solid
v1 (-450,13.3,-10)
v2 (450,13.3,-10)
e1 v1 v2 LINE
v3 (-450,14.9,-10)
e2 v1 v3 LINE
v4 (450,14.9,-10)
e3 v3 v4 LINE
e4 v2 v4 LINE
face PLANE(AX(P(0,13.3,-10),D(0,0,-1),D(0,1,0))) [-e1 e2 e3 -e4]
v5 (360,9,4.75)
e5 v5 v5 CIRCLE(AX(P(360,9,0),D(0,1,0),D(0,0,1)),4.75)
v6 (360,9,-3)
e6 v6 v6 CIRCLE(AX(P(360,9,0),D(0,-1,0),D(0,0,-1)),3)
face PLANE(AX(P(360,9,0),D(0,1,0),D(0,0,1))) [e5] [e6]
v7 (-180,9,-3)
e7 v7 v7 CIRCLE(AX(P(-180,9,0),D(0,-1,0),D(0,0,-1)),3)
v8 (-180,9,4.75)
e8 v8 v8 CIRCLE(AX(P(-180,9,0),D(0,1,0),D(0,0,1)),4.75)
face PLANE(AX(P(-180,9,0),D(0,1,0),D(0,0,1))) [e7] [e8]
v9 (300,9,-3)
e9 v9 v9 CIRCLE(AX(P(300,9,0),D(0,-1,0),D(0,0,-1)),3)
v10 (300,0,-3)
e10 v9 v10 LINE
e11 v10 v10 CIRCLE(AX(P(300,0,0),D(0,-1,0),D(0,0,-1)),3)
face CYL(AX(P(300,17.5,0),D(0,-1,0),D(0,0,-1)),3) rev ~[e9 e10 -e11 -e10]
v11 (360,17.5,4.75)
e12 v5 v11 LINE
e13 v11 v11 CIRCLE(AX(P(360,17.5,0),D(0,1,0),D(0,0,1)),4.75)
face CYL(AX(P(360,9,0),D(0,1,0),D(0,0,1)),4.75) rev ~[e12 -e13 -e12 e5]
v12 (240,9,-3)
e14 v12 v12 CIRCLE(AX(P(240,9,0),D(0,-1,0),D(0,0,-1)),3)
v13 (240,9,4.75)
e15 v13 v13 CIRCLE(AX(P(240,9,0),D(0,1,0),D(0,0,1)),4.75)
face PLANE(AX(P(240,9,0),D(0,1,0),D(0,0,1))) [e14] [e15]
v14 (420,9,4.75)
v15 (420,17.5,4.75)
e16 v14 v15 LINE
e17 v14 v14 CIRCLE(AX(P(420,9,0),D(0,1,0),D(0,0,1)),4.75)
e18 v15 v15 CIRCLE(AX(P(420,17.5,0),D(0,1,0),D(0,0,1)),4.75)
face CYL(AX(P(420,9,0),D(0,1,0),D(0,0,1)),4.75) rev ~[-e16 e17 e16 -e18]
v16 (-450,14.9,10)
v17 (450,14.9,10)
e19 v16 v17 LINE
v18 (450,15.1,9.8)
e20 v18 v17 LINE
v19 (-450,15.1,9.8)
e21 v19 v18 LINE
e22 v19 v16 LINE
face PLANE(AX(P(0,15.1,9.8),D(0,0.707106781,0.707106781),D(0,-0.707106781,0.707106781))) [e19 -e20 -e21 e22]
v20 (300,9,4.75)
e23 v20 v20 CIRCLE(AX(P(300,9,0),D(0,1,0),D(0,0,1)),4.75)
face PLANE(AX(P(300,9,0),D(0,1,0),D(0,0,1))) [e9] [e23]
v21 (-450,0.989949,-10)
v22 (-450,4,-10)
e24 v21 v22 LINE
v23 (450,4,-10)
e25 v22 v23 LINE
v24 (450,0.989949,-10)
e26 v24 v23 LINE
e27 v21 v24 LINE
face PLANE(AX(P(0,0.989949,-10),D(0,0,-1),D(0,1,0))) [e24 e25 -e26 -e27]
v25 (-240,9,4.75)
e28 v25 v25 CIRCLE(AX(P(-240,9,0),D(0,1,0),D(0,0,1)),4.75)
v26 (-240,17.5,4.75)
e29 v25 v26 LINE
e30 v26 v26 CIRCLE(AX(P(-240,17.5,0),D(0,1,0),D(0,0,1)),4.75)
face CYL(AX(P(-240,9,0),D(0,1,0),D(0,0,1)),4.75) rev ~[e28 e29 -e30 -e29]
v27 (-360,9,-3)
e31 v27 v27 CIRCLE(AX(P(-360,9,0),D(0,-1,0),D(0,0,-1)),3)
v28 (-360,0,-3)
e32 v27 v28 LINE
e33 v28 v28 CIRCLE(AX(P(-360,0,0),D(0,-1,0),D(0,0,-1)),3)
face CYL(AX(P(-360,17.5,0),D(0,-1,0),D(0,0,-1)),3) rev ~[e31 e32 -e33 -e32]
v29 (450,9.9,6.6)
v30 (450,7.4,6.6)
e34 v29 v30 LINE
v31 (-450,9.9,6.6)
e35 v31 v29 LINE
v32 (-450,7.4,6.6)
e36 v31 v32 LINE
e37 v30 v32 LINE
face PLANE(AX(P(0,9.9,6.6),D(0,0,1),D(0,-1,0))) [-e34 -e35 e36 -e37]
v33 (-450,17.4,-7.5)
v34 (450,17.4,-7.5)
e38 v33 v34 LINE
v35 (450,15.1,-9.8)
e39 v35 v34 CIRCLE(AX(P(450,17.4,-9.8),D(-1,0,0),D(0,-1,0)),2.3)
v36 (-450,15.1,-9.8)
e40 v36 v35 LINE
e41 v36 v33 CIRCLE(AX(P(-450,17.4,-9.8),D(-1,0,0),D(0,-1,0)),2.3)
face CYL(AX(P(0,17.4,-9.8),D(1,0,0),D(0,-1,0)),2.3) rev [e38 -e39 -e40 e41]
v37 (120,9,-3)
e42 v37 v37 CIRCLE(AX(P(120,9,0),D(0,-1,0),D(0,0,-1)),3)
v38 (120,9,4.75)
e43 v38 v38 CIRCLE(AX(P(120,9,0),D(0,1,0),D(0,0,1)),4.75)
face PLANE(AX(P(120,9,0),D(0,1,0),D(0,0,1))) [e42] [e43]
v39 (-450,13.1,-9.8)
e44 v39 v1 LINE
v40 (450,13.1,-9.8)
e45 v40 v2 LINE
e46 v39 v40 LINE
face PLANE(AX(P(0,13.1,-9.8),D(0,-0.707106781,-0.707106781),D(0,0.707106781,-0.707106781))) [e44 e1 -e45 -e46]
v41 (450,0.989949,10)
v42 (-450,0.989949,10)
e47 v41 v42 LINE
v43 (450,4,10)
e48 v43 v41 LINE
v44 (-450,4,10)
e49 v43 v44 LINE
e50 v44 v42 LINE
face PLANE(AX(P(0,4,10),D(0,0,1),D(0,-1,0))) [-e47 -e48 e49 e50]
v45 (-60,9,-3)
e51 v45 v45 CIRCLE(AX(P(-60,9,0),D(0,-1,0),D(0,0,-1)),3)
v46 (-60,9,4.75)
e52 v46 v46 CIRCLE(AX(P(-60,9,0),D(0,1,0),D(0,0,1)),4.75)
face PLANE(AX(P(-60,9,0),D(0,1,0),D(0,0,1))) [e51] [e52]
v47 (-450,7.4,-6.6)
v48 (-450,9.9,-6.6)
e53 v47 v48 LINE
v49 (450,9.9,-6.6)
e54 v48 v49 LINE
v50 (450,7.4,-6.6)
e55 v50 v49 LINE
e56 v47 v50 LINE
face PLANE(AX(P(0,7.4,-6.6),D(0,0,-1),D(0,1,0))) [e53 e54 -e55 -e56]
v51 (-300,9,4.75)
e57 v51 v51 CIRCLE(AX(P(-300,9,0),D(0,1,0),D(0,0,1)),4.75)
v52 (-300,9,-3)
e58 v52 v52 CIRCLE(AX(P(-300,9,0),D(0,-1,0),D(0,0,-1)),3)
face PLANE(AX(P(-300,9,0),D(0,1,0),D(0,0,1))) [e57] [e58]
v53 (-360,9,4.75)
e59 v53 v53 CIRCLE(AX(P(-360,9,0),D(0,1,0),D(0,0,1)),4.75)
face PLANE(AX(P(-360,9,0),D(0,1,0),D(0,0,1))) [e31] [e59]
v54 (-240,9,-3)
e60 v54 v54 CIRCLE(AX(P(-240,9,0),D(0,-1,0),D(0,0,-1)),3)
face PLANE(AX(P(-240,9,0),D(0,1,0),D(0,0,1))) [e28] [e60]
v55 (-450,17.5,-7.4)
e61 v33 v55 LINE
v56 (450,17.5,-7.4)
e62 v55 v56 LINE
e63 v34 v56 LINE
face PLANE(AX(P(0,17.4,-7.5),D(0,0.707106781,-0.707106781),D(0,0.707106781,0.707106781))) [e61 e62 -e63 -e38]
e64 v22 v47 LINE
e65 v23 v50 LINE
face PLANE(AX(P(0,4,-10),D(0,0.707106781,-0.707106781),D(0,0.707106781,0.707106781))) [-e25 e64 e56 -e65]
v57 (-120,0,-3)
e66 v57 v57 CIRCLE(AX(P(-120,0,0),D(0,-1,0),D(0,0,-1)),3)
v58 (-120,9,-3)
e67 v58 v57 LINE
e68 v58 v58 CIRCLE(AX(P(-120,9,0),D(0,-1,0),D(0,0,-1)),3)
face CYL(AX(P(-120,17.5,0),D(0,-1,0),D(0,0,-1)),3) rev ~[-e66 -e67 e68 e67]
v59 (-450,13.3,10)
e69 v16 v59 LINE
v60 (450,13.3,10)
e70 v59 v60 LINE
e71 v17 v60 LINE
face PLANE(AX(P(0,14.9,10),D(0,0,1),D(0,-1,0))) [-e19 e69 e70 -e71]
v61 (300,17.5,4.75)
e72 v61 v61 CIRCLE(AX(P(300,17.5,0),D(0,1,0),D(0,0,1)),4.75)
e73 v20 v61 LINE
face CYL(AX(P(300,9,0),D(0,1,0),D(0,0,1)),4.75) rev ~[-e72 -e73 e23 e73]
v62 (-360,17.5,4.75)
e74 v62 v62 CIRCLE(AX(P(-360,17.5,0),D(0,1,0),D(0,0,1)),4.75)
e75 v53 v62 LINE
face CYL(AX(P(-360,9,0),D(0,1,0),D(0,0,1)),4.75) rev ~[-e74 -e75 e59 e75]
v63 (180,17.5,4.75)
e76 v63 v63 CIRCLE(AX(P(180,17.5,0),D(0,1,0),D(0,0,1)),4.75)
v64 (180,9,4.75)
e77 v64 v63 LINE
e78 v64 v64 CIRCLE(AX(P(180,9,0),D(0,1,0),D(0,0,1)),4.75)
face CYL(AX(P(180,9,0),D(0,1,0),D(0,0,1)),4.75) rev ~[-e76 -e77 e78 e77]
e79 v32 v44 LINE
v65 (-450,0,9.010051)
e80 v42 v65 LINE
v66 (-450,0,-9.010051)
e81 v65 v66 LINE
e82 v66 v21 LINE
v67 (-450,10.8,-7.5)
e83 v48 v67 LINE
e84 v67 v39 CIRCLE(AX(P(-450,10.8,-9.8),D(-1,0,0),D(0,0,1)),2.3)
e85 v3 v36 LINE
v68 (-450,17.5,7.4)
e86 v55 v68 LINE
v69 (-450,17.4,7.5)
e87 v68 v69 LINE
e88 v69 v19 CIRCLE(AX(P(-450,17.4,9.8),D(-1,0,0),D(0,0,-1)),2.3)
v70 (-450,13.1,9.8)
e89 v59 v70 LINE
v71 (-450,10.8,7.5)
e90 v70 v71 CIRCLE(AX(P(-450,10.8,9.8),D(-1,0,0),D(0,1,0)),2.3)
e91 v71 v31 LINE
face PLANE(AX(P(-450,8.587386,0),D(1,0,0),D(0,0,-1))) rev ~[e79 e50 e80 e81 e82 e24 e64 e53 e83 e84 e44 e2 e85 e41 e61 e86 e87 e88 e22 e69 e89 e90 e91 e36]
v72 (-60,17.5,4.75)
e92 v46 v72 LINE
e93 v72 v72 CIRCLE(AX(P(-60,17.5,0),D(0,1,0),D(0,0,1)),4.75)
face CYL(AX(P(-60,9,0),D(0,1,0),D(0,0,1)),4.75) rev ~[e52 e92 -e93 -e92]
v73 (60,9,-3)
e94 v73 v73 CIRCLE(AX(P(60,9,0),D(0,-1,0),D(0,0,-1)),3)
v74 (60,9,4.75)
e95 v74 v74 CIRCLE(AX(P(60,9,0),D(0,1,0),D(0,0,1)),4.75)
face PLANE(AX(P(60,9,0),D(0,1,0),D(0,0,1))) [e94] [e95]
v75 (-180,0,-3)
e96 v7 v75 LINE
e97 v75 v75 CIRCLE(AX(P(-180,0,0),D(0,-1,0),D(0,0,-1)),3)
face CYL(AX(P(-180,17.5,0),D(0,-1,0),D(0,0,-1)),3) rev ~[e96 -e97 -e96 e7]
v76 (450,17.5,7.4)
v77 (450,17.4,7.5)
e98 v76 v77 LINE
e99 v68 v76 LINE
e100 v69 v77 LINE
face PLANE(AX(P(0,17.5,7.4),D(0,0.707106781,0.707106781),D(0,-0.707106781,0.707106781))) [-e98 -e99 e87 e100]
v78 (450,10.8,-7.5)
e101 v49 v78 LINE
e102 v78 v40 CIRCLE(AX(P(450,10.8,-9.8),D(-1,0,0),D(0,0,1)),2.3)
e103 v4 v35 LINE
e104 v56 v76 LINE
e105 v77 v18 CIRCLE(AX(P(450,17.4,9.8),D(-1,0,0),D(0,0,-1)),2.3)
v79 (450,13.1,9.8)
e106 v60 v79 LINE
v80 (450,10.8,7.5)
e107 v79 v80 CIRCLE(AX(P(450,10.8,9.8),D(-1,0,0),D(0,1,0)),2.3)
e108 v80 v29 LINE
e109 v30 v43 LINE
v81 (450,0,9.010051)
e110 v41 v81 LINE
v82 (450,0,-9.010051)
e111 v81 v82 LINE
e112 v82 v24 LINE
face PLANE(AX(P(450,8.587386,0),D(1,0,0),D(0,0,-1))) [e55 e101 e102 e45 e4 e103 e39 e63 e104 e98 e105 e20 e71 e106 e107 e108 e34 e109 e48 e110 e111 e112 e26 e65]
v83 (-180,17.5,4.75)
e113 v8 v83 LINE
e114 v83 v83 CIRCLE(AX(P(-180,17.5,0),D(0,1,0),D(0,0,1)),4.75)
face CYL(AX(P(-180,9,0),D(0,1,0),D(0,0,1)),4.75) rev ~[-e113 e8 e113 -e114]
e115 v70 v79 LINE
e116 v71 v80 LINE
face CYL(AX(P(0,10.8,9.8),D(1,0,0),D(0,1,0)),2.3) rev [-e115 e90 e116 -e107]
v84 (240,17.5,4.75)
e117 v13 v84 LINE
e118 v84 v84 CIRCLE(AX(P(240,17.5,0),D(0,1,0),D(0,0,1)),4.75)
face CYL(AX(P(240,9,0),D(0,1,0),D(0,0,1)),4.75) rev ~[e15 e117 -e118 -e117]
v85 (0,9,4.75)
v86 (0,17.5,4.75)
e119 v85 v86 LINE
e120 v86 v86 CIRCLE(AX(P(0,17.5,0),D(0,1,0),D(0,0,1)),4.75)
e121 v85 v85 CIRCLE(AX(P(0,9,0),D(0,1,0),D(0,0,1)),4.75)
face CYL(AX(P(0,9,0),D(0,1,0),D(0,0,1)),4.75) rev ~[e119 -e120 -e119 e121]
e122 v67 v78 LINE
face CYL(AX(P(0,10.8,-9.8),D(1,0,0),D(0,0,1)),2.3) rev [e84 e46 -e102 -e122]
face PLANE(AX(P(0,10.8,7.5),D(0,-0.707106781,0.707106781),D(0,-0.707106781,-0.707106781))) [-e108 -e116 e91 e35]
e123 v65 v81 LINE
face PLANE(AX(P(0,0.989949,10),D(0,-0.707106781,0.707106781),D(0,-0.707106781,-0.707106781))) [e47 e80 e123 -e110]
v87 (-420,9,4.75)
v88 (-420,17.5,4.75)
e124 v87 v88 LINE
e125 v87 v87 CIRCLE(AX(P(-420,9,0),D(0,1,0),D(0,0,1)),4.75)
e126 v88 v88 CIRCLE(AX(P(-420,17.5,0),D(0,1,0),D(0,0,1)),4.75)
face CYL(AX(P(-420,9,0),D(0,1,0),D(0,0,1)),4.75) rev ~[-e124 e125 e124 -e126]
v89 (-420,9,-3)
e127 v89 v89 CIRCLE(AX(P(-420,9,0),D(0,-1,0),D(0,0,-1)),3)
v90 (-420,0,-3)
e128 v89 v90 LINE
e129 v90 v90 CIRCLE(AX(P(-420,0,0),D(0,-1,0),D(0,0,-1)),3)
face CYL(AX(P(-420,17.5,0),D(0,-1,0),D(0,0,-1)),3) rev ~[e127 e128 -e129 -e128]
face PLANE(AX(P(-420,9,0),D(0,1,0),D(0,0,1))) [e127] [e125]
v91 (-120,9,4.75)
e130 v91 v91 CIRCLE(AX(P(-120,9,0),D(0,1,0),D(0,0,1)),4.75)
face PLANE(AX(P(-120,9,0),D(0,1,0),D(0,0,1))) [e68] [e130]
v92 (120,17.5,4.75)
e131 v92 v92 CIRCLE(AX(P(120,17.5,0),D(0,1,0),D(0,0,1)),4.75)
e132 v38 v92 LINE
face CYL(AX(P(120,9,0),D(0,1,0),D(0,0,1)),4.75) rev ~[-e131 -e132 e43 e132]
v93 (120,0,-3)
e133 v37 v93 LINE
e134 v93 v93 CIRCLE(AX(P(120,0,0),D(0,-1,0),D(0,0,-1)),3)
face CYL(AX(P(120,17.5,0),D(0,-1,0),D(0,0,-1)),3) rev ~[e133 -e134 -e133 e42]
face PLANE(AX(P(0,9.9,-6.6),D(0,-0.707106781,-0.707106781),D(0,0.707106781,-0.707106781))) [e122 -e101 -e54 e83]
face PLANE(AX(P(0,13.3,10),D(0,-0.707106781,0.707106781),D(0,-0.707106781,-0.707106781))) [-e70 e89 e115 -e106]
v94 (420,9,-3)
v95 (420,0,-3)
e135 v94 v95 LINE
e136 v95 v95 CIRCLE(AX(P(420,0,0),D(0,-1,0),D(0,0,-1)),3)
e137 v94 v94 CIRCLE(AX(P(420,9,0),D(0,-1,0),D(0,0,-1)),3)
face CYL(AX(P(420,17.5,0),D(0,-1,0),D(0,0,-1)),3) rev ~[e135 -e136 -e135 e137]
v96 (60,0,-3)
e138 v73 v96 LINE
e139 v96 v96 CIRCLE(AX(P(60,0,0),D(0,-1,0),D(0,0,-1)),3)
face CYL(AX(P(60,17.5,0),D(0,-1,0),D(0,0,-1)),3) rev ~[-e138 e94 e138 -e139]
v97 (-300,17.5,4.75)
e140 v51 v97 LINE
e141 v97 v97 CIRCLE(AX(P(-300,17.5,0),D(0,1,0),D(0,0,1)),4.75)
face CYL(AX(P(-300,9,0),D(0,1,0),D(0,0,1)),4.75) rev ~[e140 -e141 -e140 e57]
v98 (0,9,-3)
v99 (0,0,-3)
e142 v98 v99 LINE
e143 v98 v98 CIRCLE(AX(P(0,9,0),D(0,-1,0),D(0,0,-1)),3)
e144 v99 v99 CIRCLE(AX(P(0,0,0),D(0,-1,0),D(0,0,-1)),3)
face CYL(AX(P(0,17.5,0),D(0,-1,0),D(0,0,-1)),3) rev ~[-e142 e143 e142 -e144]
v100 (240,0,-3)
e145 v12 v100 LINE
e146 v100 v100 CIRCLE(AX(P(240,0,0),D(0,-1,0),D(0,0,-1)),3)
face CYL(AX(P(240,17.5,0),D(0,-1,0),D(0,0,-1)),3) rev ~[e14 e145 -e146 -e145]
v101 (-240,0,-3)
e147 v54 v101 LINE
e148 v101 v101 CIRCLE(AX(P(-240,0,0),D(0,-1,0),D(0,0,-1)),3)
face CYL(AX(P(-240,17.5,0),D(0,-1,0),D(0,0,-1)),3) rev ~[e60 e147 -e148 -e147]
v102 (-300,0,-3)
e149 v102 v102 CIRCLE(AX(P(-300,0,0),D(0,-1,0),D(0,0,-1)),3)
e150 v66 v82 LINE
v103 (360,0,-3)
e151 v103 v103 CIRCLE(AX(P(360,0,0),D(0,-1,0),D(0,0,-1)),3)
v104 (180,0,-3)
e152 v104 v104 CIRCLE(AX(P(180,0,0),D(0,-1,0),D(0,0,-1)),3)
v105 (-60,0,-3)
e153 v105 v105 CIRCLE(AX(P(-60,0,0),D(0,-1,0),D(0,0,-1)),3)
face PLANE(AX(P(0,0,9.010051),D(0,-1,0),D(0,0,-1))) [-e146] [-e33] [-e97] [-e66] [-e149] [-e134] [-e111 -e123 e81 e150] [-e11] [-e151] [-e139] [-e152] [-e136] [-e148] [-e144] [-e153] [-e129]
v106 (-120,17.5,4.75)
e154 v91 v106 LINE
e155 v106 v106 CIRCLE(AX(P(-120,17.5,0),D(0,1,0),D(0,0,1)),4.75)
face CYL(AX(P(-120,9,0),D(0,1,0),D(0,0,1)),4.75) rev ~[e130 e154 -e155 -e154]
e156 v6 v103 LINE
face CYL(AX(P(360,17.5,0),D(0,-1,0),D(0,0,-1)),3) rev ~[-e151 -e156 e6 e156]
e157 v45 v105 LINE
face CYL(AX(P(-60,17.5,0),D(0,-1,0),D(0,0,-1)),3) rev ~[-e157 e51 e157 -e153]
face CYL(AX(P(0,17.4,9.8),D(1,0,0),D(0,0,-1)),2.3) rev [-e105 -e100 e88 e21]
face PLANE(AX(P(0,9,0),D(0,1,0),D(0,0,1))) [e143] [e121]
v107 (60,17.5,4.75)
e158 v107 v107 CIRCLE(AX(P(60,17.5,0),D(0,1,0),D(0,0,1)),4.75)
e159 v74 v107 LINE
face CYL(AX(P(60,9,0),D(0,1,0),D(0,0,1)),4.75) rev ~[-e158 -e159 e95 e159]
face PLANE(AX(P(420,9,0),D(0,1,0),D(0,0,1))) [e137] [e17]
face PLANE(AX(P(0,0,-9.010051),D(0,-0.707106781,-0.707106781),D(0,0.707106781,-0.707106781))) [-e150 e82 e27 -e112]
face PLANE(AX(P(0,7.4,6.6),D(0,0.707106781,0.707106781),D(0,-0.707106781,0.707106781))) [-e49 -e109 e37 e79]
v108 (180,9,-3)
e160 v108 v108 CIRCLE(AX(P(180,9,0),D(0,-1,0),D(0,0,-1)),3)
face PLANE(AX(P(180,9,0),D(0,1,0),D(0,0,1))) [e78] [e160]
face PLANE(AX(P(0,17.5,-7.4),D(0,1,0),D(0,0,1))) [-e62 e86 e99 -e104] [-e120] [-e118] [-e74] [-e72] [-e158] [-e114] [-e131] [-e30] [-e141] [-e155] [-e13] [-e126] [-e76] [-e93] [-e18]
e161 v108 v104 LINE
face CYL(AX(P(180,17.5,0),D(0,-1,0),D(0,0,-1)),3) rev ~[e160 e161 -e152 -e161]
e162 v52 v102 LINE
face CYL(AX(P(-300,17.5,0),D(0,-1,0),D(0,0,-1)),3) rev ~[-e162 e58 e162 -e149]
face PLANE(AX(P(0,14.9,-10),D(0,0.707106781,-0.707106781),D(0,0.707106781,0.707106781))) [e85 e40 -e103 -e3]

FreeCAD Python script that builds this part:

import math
import FreeCAD as App
import Part
import Sketcher

doc = App.newDocument("Part")
body = doc.addObject("PartDesign::Body", "Body")

# Sketch on YZ plane
sketch1 = doc.addObject("Sketcher::SketchObject", "Sketch")
body.addObject(sketch1)
sketch1.AttachmentSupport = (doc.YZ_Plane, [""])
sketch1.MapMode = "FlatFace"
sketch1.addGeometry([
    Part.LineSegment(App.Vector(0.99, 10, 0), App.Vector(0, 9.01, 0)),  # 0
    Part.LineSegment(App.Vector(0, 9.01, 0), App.Vector(0, -9.01, 0)),  # 1
    Part.LineSegment(App.Vector(0, -9.01, 0), App.Vector(0.99, -10, 0)),  # 2
    Part.LineSegment(App.Vector(0.99, -10, 0), App.Vector(4, -10, 0)),  # 3
    Part.LineSegment(App.Vector(4, -10, 0), App.Vector(7.4, -6.6, 0)),  # 4
    Part.LineSegment(App.Vector(7.4, -6.6, 0), App.Vector(9.9, -6.6, 0)),  # 5
    Part.LineSegment(App.Vector(9.9, -6.6, 0), App.Vector(10.8, -7.5, 0)),  # 6
    Part.ArcOfCircle(Part.Circle(App.Vector(10.8, -9.8, 0), App.Vector(0, 0, 1), 2.3), math.radians(0), math.radians(90)),  # 7
    Part.LineSegment(App.Vector(13.1, -9.8, 0), App.Vector(13.3, -10, 0)),  # 8
    Part.LineSegment(App.Vector(13.3, -10, 0), App.Vector(14.9, -10, 0)),  # 9
    Part.LineSegment(App.Vector(14.9, -10, 0), App.Vector(15.1, -9.8, 0)),  # 10
    Part.ArcOfCircle(Part.Circle(App.Vector(17.4, -9.8, 0), App.Vector(0, 0, 1), 2.3), math.radians(90), math.radians(180)),  # 11
    Part.LineSegment(App.Vector(17.4, -7.5, 0), App.Vector(17.5, -7.4, 0)),  # 12
    Part.LineSegment(App.Vector(17.5, -7.4, 0), App.Vector(17.5, 7.4, 0)),  # 13
    Part.LineSegment(App.Vector(17.5, 7.4, 0), App.Vector(17.4, 7.5, 0)),  # 14
    Part.ArcOfCircle(Part.Circle(App.Vector(17.4, 9.8, 0), App.Vector(0, 0, 1), 2.3), math.radians(180), math.radians(270)),  # 15
    Part.LineSegment(App.Vector(15.1, 9.8, 0), App.Vector(14.9, 10, 0)),  # 16
    Part.LineSegment(App.Vector(14.9, 10, 0), App.Vector(13.3, 10, 0)),  # 17
    Part.LineSegment(App.Vector(13.3, 10, 0), App.Vector(13.1, 9.8, 0)),  # 18
    Part.ArcOfCircle(Part.Circle(App.Vector(10.8, 9.8, 0), App.Vector(0, 0, 1), 2.3), math.radians(-90), math.radians(0)),  # 19
    Part.LineSegment(App.Vector(10.8, 7.5, 0), App.Vector(9.9, 6.6, 0)),  # 20
    Part.LineSegment(App.Vector(9.9, 6.6, 0), App.Vector(7.4, 6.6, 0)),  # 21
    Part.LineSegment(App.Vector(7.4, 6.6, 0), App.Vector(4, 10, 0)),  # 22
    Part.LineSegment(App.Vector(4, 10, 0), App.Vector(0.99, 10, 0)),  # 23
], False)
sketch1.addConstraint([
    Sketcher.Constraint("Coincident", 0, 2, 1, 1),
    Sketcher.Constraint("Coincident", 1, 2, 2, 1),
    Sketcher.Constraint("Coincident", 2, 2, 3, 1),
    Sketcher.Constraint("Coincident", 3, 2, 4, 1),
    Sketcher.Constraint("Coincident", 4, 2, 5, 1),
    Sketcher.Constraint("Coincident", 5, 2, 6, 1),
    Sketcher.Constraint("Coincident", 6, 2, 7, 2),
    Sketcher.Constraint("Coincident", 7, 1, 8, 1),
    Sketcher.Constraint("Coincident", 8, 2, 9, 1),
    Sketcher.Constraint("Coincident", 9, 2, 10, 1),
    Sketcher.Constraint("Coincident", 10, 2, 11, 2),
    Sketcher.Constraint("Coincident", 11, 1, 12, 1),
    Sketcher.Constraint("Coincident", 12, 2, 13, 1),
    Sketcher.Constraint("Coincident", 13, 2, 14, 1),
    Sketcher.Constraint("Coincident", 14, 2, 15, 2),
    Sketcher.Constraint("Coincident", 15, 1, 16, 1),
    Sketcher.Constraint("Coincident", 16, 2, 17, 1),
    Sketcher.Constraint("Coincident", 17, 2, 18, 1),
    Sketcher.Constraint("Coincident", 18, 2, 19, 2),
    Sketcher.Constraint("Coincident", 19, 1, 20, 1),
    Sketcher.Constraint("Coincident", 20, 2, 21, 1),
    Sketcher.Constraint("Coincident", 21, 2, 22, 1),
    Sketcher.Constraint("Coincident", 22, 2, 23, 1),
    Sketcher.Constraint("Coincident", 23, 2, 0, 1),
    Sketcher.Constraint("Vertical", 1),
    Sketcher.Constraint("Horizontal", 3),
    Sketcher.Constraint("Horizontal", 5),
    Sketcher.Constraint("Horizontal", 9),
    Sketcher.Constraint("Vertical", 13),
    Sketcher.Constraint("Horizontal", 17),
    Sketcher.Constraint("Horizontal", 21),
    Sketcher.Constraint("Horizontal", 23),
    Sketcher.Constraint("Equal", 7, 11),
    Sketcher.Constraint("Equal", 11, 15),
    Sketcher.Constraint("Equal", 15, 19),
    Sketcher.Constraint("Symmetric", 0, 2, 1, 2, -1, 1),
    Sketcher.Constraint("Symmetric", 11, 3, 15, 3, -1),
    Sketcher.Constraint("Symmetric", 7, 3, 19, 3, -1),
    Sketcher.Constraint("Symmetric", 9, 2, 16, 2, -1),
    Sketcher.Constraint("Symmetric", 5, 2, 20, 2, -1),
    Sketcher.Constraint("Symmetric", 3, 2, 22, 2, -1),
    Sketcher.Constraint("Perpendicular", 0, 2),
    Sketcher.Constraint("Perpendicular", 2, 4),
    Sketcher.Constraint("Perpendicular", 4, 6),
    Sketcher.Constraint("Parallel", 6, 8),
    Sketcher.Constraint("Perpendicular", 8, 10),
    Sketcher.Constraint("Parallel", 10, 12),
    Sketcher.Constraint("Perpendicular", 12, 14),
    Sketcher.Constraint("Parallel", 14, 16),
    Sketcher.Constraint("Perpendicular", 16, 18),
    Sketcher.Constraint("Parallel", 18, 20),
    Sketcher.Constraint("Perpendicular", 20, 22),
    Sketcher.Constraint("Horizontal", 7, 3, 11, 3),
    Sketcher.Constraint("Horizontal", 11, 3, 7, 1),
    Sketcher.Constraint("Horizontal", 3, 2, 8, 2),
    Sketcher.Constraint("Horizontal", 7, 1, 10, 2),
    Sketcher.Constraint("Horizontal", 19, 3, 15, 1),
    Sketcher.Constraint("Horizontal", 15, 1, 18, 2),
    Sketcher.Constraint("Vertical", 19, 3, 6, 2),
    Sketcher.Constraint("Vertical", 15, 3, 11, 1),
    Sketcher.Constraint("Vertical", 11, 1, 14, 2),
    Sketcher.Constraint("Radius", 7, 2.3),
    Sketcher.Constraint("DistanceX", 5, 1, 5, 2, 2.5),
    Sketcher.Constraint("DistanceX", 9, 1, 9, 2, 1.6),
    Sketcher.Constraint("DistanceY", 13, 1, 13, 2, 14.8),
    Sketcher.Constraint("DistanceY", 2, 2, -1, 1, 10.0),
    Sketcher.Constraint("DistanceX", -1, 1, 3, 2, 4.0),
    Sketcher.Constraint("DistanceX", 4, 2, 11, 3, 10.0),
    Sketcher.Constraint("DistanceX", 7, 1, 10, 2, 2.0),
    Sketcher.Constraint("Distance", 0, 1.4),
])
pad1 = doc.addObject("PartDesign::Pad", "Pad")
body.addObject(pad1)
pad1.Profile = sketch1
pad1.Length = 900
pad1.Midplane = True

# Sketch on XZ plane
sketch2 = doc.addObject("Sketcher::SketchObject", "Sketch001")
body.addObject(sketch2)
sketch2.AttachmentSupport = (doc.XZ_Plane, [""])
sketch2.MapMode = "FlatFace"
sketch2.AttachmentOffset = App.Placement(App.Vector(0, 0, -17.5), App.Rotation())
sketch2.addGeometry(Part.Circle(App.Vector(0, 0, 0), App.Vector(0, 0, 1), 3), False)
sketch2.addConstraint([
    Sketcher.Constraint("Coincident", 0, 3, -1, 1),
    Sketcher.Constraint("Diameter", 0, 6.0),
])
doc.recompute()
hole = doc.addObject("PartDesign::Hole", "Hole")
body.addObject(hole)
hole.Profile = sketch2
hole.ThreadType = "None"
hole.Diameter = 6
hole.DepthType = "ThroughAll"
hole.HoleCutType = "Counterbore"
hole.HoleCutDiameter = 9.5
hole.HoleCutDepth = 8.5
hole.Reversed = True
doc.recompute()

linearpattern = doc.addObject("PartDesign::LinearPattern", "LinearPattern")
body.addObject(linearpattern)
linearpattern.Originals = [hole]
linearpattern.Direction = (doc.X_Axis, [""])
linearpattern.Mode = "offset"
linearpattern.Offset = 60
linearpattern.Occurrences = 8
body.Tip = linearpattern
doc.recompute()

linearpattern2 = doc.addObject("PartDesign::LinearPattern", "LinearPattern001")
body.addObject(linearpattern2)
linearpattern2.Originals = [hole]
linearpattern2.Direction = (doc.X_Axis, [""])
linearpattern2.Mode = "offset"
linearpattern2.Offset = 60
linearpattern2.Occurrences = 8
linearpattern2.Reversed = True
body.Tip = linearpattern2

doc.recompute()
